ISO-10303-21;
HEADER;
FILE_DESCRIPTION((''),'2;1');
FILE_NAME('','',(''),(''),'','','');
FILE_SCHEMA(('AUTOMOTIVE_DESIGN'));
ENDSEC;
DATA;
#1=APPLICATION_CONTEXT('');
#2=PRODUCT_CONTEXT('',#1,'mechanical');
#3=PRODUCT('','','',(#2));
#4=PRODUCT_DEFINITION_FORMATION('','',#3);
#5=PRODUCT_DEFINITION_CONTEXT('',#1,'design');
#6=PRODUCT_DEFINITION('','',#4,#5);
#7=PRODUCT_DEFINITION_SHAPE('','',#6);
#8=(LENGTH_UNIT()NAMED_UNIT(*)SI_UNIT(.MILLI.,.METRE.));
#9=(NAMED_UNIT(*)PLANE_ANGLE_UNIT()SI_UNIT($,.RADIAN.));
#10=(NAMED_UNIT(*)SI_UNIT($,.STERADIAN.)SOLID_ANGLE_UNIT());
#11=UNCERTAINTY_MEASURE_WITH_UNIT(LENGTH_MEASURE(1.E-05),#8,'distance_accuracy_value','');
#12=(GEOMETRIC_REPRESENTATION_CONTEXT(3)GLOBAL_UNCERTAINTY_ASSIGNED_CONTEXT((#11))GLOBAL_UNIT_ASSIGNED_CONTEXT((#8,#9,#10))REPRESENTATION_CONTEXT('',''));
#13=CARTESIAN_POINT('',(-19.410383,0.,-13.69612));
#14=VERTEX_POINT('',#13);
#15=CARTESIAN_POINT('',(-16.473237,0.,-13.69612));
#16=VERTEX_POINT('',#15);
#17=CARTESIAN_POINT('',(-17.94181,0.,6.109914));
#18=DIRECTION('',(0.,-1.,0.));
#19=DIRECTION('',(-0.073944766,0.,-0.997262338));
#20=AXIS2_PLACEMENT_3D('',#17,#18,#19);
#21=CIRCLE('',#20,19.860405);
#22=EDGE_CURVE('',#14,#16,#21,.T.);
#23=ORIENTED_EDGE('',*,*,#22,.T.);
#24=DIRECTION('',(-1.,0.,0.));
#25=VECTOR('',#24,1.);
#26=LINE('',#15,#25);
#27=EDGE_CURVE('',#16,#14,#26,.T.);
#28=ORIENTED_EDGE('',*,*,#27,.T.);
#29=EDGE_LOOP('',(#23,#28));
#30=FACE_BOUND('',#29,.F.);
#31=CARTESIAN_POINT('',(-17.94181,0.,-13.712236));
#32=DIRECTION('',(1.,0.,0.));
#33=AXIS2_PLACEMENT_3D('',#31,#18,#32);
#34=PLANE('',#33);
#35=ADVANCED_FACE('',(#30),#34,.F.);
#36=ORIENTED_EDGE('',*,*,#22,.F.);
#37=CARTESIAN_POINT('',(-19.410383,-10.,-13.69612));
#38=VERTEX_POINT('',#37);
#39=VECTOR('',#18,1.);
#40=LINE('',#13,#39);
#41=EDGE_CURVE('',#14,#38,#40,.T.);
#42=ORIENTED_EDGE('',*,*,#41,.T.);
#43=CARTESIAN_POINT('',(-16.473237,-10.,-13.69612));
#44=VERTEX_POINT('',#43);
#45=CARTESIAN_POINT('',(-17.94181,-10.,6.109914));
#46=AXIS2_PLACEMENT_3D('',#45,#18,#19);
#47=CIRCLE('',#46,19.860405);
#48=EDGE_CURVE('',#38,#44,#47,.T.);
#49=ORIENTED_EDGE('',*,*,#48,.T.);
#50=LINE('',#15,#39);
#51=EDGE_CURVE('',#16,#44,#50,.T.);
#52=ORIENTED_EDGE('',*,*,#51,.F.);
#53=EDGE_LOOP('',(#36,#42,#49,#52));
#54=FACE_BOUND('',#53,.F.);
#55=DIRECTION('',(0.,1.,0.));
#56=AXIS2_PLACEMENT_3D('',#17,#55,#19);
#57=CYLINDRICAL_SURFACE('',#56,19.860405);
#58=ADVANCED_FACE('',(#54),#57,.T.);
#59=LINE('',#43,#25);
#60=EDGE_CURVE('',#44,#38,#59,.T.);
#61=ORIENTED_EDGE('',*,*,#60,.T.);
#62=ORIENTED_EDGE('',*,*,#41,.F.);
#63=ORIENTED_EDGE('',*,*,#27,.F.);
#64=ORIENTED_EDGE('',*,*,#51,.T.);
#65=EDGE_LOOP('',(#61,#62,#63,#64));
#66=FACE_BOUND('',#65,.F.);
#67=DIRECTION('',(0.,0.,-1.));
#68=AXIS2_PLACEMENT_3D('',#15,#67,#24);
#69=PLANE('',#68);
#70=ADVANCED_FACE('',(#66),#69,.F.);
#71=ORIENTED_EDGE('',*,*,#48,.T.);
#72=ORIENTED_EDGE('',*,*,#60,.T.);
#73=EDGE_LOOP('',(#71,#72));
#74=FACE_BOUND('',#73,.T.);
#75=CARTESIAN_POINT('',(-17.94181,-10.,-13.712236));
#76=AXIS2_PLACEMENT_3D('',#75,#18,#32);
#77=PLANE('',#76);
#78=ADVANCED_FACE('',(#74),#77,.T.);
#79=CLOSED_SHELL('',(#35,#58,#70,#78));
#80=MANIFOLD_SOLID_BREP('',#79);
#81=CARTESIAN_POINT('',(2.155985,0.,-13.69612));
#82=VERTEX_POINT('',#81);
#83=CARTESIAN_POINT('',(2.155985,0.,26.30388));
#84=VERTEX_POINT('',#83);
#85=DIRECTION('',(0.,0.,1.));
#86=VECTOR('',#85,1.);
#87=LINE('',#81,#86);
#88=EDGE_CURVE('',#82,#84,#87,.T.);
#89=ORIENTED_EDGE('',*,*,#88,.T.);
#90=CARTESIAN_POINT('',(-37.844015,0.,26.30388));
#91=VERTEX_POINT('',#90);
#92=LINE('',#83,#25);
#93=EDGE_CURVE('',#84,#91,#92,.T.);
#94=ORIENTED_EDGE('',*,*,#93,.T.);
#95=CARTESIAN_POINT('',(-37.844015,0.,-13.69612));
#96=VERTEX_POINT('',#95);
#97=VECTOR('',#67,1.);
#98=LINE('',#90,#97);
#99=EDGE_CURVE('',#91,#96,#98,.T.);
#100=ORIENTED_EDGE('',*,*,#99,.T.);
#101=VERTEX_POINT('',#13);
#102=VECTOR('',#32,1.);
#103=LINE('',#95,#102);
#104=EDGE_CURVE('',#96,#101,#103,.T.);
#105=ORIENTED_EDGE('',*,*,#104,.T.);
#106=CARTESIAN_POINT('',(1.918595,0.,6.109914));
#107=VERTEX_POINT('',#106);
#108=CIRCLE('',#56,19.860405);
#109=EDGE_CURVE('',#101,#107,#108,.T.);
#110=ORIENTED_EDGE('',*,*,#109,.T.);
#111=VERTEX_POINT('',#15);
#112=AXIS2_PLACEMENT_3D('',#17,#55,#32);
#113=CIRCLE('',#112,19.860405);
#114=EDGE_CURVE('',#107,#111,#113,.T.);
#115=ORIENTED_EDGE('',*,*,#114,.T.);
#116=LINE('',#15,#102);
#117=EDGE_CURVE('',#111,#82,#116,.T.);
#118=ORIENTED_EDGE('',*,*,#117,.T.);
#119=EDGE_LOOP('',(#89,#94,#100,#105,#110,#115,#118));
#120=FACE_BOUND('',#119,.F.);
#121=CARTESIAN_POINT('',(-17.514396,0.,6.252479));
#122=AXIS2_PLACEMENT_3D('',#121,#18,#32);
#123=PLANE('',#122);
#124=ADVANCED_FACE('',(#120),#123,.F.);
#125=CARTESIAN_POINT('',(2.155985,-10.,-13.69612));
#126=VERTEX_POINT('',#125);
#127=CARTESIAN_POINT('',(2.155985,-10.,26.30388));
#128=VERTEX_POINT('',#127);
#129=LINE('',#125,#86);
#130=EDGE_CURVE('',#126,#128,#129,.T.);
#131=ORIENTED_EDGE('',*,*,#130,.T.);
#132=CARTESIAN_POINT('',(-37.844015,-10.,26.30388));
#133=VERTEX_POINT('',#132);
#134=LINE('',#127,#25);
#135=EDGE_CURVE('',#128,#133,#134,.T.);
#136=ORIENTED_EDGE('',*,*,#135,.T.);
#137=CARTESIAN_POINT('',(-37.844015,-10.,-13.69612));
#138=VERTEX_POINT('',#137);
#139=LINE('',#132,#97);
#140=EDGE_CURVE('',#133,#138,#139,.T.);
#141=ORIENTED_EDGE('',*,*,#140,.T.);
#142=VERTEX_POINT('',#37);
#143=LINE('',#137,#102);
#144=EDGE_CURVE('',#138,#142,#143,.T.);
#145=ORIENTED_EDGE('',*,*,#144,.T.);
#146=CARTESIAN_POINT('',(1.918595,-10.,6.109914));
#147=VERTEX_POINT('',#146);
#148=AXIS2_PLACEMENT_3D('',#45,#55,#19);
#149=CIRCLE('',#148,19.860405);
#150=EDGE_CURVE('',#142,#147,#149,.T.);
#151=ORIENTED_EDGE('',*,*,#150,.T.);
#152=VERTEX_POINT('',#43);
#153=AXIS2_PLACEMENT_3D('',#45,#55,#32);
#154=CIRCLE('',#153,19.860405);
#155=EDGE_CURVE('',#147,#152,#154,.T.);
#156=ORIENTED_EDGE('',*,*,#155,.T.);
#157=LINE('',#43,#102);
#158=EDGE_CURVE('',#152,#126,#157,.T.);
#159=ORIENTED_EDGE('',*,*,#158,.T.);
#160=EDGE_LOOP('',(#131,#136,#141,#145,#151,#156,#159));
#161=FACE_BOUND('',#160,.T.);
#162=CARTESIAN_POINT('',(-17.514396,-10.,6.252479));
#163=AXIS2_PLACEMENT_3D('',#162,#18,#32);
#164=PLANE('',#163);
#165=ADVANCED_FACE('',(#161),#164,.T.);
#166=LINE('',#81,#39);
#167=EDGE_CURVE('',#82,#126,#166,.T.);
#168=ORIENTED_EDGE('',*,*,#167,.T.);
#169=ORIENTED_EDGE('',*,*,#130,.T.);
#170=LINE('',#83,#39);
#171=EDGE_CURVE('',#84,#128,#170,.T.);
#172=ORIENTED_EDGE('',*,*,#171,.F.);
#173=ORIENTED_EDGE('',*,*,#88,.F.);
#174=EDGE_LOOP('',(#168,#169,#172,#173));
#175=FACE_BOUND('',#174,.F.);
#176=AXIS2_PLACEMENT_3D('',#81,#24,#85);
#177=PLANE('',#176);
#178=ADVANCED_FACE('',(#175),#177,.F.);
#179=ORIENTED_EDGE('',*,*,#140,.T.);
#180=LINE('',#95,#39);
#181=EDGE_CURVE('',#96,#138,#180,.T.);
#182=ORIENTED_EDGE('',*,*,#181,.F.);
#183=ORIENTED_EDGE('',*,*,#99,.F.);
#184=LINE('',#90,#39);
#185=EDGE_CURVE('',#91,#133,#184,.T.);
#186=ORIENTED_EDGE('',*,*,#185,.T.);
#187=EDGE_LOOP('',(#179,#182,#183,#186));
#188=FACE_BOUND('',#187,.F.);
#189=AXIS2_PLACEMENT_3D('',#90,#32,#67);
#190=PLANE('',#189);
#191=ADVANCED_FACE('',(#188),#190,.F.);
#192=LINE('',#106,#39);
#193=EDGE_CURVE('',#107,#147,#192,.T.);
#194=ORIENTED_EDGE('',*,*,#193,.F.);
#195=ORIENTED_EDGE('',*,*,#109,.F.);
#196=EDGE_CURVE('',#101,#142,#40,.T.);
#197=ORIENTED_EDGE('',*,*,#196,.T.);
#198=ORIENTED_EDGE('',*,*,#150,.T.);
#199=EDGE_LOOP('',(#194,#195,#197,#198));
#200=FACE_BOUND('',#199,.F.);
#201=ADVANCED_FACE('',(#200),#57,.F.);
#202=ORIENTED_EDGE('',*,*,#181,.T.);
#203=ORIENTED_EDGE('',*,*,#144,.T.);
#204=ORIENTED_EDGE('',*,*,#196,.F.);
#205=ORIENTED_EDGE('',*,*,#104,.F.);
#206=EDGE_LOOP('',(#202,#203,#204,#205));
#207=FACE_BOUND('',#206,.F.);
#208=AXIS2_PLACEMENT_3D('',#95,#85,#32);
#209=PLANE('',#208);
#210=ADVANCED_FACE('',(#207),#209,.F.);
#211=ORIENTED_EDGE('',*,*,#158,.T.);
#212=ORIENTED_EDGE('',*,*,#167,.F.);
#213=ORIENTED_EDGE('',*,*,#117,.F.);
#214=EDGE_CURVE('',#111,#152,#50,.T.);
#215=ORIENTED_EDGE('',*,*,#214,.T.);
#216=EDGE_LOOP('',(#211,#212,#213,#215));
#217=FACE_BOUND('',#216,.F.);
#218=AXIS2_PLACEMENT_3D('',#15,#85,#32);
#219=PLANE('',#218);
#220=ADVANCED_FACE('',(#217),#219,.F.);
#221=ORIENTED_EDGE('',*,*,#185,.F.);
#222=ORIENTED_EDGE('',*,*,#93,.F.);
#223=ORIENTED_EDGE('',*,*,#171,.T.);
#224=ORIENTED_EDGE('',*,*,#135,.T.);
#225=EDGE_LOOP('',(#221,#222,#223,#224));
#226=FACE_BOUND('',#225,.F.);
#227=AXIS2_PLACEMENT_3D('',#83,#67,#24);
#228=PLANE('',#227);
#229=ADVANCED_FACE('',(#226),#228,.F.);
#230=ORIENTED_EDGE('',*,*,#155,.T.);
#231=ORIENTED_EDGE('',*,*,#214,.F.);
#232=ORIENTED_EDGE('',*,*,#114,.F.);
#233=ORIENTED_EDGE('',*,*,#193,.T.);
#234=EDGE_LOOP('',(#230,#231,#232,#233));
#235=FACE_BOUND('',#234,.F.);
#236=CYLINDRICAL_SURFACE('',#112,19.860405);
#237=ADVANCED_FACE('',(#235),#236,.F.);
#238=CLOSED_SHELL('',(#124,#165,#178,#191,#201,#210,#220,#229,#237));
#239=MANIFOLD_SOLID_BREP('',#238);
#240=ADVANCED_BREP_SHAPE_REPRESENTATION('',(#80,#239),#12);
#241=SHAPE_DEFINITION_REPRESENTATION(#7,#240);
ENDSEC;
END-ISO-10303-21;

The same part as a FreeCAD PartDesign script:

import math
import FreeCAD as App
import Part
import Sketcher

V = App.Vector
Q = App.Units.Quantity

doc = App.newDocument("Part")
body = doc.addObject("PartDesign::Body", "Body")

# Sketch on XZ plane
sketch1 = doc.addObject("Sketcher::SketchObject", "Sketch")
body.addObject(sketch1)
sketch1.AttachmentSupport = (doc.XZ_Plane, [""])
sketch1.MapMode = "FlatFace"
sketch1.addGeometry([
    Part.LineSegment(V(2, 26, 0), V(-38, 26, 0)),  # 0
    Part.LineSegment(V(-38, 26, 0), V(-38, -14, 0)),  # 1
    Part.LineSegment(V(-38, -14, 0), V(-19, -14, 0)),  # 2
    Part.ArcOfCircle(Part.Circle(V(-18, 6, 0), V(0, 0, 1), 20), math.radians(0), math.radians(266)),  # 3
    Part.ArcOfCircle(Part.Circle(V(-18, 6, 0), V(0, 0, 1), 20), math.radians(-86), math.radians(0)),  # 4
    Part.LineSegment(V(-16, -14, 0), V(2, -14, 0)),  # 5
    Part.LineSegment(V(2, -14, 0), V(2, 26, 0)),  # 6
], False)
sketch1.addConstraint([
    Sketcher.Constraint("Coincident", 0, 2, 1, 1),
    Sketcher.Constraint("Coincident", 1, 2, 2, 1),
    Sketcher.Constraint("Coincident", 2, 2, 3, 2),
    Sketcher.Constraint("Tangent", 3, 1, 4, 2),
    Sketcher.Constraint("Coincident", 4, 1, 5, 1),
    Sketcher.Constraint("Coincident", 5, 2, 6, 1),
    Sketcher.Constraint("Coincident", 6, 2, 0, 1),
    Sketcher.Constraint("Horizontal", 0),
    Sketcher.Constraint("Vertical", 1),
    Sketcher.Constraint("Horizontal", 2),
    Sketcher.Constraint("Horizontal", 5),
    Sketcher.Constraint("Vertical", 6),
    Sketcher.Constraint("Equal", 3, 4),
    Sketcher.Constraint("Horizontal", 4, 3, 3, 1),
    Sketcher.Constraint("Horizontal", 2, 2, 4, 1),
    Sketcher.Constraint("Equal", 0, 1),
    Sketcher.Constraint("DistanceX", 0, 2, 0, 1, Q("40 mm")),
    Sketcher.Constraint("Radius", 3, Q("19.860405 mm")),
    Sketcher.Constraint("DistanceX", 5, 1, 5, 2, Q("18.629222 mm")),
    Sketcher.Constraint("DistanceX", 2, 1, 2, 2, Q("18.433632 mm")),
    Sketcher.Constraint("DistanceX", 3, 3, -1, 1, Q("17.94181 mm")),
    Sketcher.Constraint("DistanceY", -1, 1, 0, 2, Q("26.30388 mm")),
])
pad1 = doc.addObject("PartDesign::Pad", "Pad")
body.addObject(pad1)
pad1.Profile = sketch1
pad1.Length = 10
body2 = doc.addObject("PartDesign::Body", "Body001")

# Sketch on XZ plane
sketch2 = doc.addObject("Sketcher::SketchObject", "Sketch001")
body2.addObject(sketch2)
sketch2.AttachmentSupport = (doc.getObject("XZ_Plane001"), [""])
sketch2.MapMode = "FlatFace"
sketch2.addGeometry([
    Part.LineSegment(V(-16.5, -13.7, 0), V(-19.4, -13.7, 0)),
    Part.ArcOfCircle(Part.Circle(V(-17.9, 6.1, 0), V(0, 0, 1), 19.9), math.radians(-94.24), math.radians(-85.76)),
], False)
sketch2.addConstraint([
    Sketcher.Constraint("Coincident", 0, 1, 1, 2),
    Sketcher.Constraint("Coincident", 1, 1, 0, 2),
    Sketcher.Constraint("Horizontal", 0),
    Sketcher.Constraint("Radius", 1, Q("19.860405 mm")),
    Sketcher.Constraint("DistanceX", 0, 2, 0, 1, Q("2.937146 mm")),
    Sketcher.Constraint("DistanceX", 1, 3, -1, 1, Q("17.94181 mm")),
    Sketcher.Constraint("DistanceY", 0, 1, -1, 1, Q("13.69612 mm")),
])
pad2 = doc.addObject("PartDesign::Pad", "Pad001")
body2.addObject(pad2)
pad2.Profile = sketch2
pad2.Length = 10

doc.recompute()
